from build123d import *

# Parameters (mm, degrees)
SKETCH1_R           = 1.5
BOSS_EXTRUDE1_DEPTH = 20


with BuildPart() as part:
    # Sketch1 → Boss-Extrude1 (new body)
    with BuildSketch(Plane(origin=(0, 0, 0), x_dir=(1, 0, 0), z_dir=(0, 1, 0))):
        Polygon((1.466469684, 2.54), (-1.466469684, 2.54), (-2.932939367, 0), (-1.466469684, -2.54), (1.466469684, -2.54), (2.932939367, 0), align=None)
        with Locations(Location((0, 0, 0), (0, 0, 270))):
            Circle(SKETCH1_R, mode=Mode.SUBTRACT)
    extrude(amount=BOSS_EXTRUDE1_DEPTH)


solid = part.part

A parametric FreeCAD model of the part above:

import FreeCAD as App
import Part
import Sketcher
Q = App.Units.Quantity


def add_polygon(sketch, points):
    """Adds a closed chain of lines whose ends are joined by coincident constraints."""
    first, n = sketch.GeometryCount, len(points)
    for a, b in zip(points, points[1:] + points[:1]):
        sketch.addGeometry(Part.LineSegment(App.Vector(*a, 0), App.Vector(*b, 0)), False)
    for i in range(n):
        sketch.addConstraint(Sketcher.Constraint("Coincident", first + i, 2, first + (i + 1) % n, 1))

doc = App.newDocument("Part")
body = doc.addObject("PartDesign::Body", "Body")

# Sketch on XZ plane
sketch1 = body.newObject("Sketcher::SketchObject", "Sketch")
sketch1.AttachmentSupport = (doc.getObject("XZ_Plane"), [""])
sketch1.MapMode = "FlatFace"
add_polygon(sketch1, [(1.5, -2.5), (-1.5, -2.5), (-2.9, 0), (-1.5, 2.5), (1.5, 2.5), (2.9, 0)])  # lines 0-5
sketch1.addGeometry(Part.Circle(App.Vector(0, 0, 0), App.Vector(0, 0, 1), 1.5), False)  # 6
sketch1.addConstraint([
    Sketcher.Constraint("Horizontal", 0),
    Sketcher.Constraint("Horizontal", 3),
    Sketcher.Constraint("Coincident", 6, 3, -1, 1),
    Sketcher.Constraint("Symmetric", 0, 2, 3, 2, -1, 1),
    Sketcher.Constraint("Symmetric", 1, 2, 4, 2, -1, 1),
    Sketcher.Constraint("PointOnObject", 1, 2, -1),
    Sketcher.Constraint("Parallel", 2, 5),
    Sketcher.Constraint("Vertical", 0, 2, 2, 2),
    Sketcher.Constraint("Diameter", 6, Q("3 mm")),
    Sketcher.Constraint("Angle", 1, Q("120 deg")),
    Sketcher.Constraint("DistanceY", 0, 2, -1, 1, Q("2.54 mm")),
    Sketcher.Constraint("DistanceX", 0, 2, 0, 1, Q("2.932939 mm")),
])
pad1 = body.newObject("PartDesign::Pad", "Pad")
pad1.Profile = sketch1
pad1.Length = 20
pad1.Reversed = True

doc.recompute()
